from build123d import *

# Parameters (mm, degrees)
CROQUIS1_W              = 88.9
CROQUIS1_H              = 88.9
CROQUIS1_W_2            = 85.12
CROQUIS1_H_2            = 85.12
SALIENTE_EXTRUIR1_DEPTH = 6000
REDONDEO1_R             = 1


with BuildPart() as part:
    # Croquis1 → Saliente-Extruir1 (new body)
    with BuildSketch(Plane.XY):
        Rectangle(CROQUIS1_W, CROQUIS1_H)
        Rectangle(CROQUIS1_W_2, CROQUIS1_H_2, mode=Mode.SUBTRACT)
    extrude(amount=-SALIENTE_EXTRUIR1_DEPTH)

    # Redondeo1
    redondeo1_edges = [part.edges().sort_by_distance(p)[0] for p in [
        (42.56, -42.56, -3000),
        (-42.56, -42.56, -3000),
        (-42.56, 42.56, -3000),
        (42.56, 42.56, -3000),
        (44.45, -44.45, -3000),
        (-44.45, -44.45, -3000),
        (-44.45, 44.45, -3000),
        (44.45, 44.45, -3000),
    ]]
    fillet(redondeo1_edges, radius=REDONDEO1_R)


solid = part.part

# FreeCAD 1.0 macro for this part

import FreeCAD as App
import Part
import Sketcher
from FreeCAD import Vector
Q = App.Units.Quantity


def edges_at(feature, points):
    """Names of the edges that pass closest to the given points."""
    edges = feature.Shape.Edges
    near = lambda p: min(range(len(edges)), key=lambda i: edges[i].distToShape(Part.Vertex(*p))[0])
    return sorted({f"Edge{near(p) + 1}" for p in points})

doc = App.newDocument("Part")
body = doc.addObject("PartDesign::Body", "Body")

# Sketch on XY plane
sketch1 = body.newObject("Sketcher::SketchObject", "Sketch")
sketch1.AttachmentSupport = (doc.getObject("XY_Plane"), [""])
sketch1.MapMode = "FlatFace"
sketch1.addGeometry(Part.LineSegment(Vector(-44, 44, 0), Vector(-44, -44, 0)), False)
sketch1.addGeometry(Part.LineSegment(Vector(-44, -44, 0), Vector(44, -44, 0)), False)
sketch1.addGeometry(Part.LineSegment(Vector(44, -44, 0), Vector(44, 44, 0)), False)
sketch1.addGeometry(Part.LineSegment(Vector(44, 44, 0), Vector(-44, 44, 0)), False)
sketch1.addGeometry(Part.LineSegment(Vector(43, -43, 0), Vector(-43, -43, 0)), False)
sketch1.addGeometry(Part.LineSegment(Vector(-43, -43, 0), Vector(-43, 43, 0)), False)
sketch1.addGeometry(Part.LineSegment(Vector(-43, 43, 0), Vector(43, 43, 0)), False)
sketch1.addGeometry(Part.LineSegment(Vector(43, 43, 0), Vector(43, -43, 0)), False)
sketch1.addConstraint(Sketcher.Constraint("Coincident", 0, 2, 1, 1))
sketch1.addConstraint(Sketcher.Constraint("Coincident", 1, 2, 2, 1))
sketch1.addConstraint(Sketcher.Constraint("Coincident", 2, 2, 3, 1))
sketch1.addConstraint(Sketcher.Constraint("Coincident", 3, 2, 0, 1))
sketch1.addConstraint(Sketcher.Constraint("Coincident", 4, 2, 5, 1))
sketch1.addConstraint(Sketcher.Constraint("Coincident", 5, 2, 6, 1))
sketch1.addConstraint(Sketcher.Constraint("Coincident", 6, 2, 7, 1))
sketch1.addConstraint(Sketcher.Constraint("Coincident", 7, 2, 4, 1))
sketch1.addConstraint(Sketcher.Constraint("Vertical", 0))
sketch1.addConstraint(Sketcher.Constraint("Horizontal", 1))
sketch1.addConstraint(Sketcher.Constraint("Vertical", 2))
sketch1.addConstraint(Sketcher.Constraint("Horizontal", 3))
sketch1.addConstraint(Sketcher.Constraint("Horizontal", 4))
sketch1.addConstraint(Sketcher.Constraint("Vertical", 5))
sketch1.addConstraint(Sketcher.Constraint("Horizontal", 6))
sketch1.addConstraint(Sketcher.Constraint("Vertical", 7))
sketch1.addConstraint(Sketcher.Constraint("Symmetric", 0, 2, 2, 2, -1, 1))
sketch1.addConstraint(Sketcher.Constraint("Symmetric", 4, 2, 6, 2, -1, 1))
sketch1.addConstraint(Sketcher.Constraint("Equal", 3, 0))
sketch1.addConstraint(Sketcher.Constraint("Equal", 6, 5))
sketch1.addConstraint(Sketcher.Constraint("DistanceX", 1, 1, 1, 2, Q("88.9 mm")))
sketch1.addConstraint(Sketcher.Constraint("DistanceX", 4, 2, 4, 1, Q("85.12 mm")))
pad1 = body.newObject("PartDesign::Pad", "Pad")
pad1.Profile = sketch1
pad1.Length = 6000
pad1.Reversed = True
doc.recompute()

fillet = body.newObject("PartDesign::Fillet", "Fillet")
fillet.Base = (pad1, edges_at(pad1, [
    (42.56, -42.56, -3000),
    (-42.56, -42.56, -3000),
    (-42.56, 42.56, -3000),
    (42.56, 42.56, -3000),
    (44.45, -44.45, -3000),
    (-44.45, -44.45, -3000),
    (-44.45, 44.45, -3000),
    (44.45, 44.45, -3000),
]))
fillet.Radius = 1

doc.recompute()
